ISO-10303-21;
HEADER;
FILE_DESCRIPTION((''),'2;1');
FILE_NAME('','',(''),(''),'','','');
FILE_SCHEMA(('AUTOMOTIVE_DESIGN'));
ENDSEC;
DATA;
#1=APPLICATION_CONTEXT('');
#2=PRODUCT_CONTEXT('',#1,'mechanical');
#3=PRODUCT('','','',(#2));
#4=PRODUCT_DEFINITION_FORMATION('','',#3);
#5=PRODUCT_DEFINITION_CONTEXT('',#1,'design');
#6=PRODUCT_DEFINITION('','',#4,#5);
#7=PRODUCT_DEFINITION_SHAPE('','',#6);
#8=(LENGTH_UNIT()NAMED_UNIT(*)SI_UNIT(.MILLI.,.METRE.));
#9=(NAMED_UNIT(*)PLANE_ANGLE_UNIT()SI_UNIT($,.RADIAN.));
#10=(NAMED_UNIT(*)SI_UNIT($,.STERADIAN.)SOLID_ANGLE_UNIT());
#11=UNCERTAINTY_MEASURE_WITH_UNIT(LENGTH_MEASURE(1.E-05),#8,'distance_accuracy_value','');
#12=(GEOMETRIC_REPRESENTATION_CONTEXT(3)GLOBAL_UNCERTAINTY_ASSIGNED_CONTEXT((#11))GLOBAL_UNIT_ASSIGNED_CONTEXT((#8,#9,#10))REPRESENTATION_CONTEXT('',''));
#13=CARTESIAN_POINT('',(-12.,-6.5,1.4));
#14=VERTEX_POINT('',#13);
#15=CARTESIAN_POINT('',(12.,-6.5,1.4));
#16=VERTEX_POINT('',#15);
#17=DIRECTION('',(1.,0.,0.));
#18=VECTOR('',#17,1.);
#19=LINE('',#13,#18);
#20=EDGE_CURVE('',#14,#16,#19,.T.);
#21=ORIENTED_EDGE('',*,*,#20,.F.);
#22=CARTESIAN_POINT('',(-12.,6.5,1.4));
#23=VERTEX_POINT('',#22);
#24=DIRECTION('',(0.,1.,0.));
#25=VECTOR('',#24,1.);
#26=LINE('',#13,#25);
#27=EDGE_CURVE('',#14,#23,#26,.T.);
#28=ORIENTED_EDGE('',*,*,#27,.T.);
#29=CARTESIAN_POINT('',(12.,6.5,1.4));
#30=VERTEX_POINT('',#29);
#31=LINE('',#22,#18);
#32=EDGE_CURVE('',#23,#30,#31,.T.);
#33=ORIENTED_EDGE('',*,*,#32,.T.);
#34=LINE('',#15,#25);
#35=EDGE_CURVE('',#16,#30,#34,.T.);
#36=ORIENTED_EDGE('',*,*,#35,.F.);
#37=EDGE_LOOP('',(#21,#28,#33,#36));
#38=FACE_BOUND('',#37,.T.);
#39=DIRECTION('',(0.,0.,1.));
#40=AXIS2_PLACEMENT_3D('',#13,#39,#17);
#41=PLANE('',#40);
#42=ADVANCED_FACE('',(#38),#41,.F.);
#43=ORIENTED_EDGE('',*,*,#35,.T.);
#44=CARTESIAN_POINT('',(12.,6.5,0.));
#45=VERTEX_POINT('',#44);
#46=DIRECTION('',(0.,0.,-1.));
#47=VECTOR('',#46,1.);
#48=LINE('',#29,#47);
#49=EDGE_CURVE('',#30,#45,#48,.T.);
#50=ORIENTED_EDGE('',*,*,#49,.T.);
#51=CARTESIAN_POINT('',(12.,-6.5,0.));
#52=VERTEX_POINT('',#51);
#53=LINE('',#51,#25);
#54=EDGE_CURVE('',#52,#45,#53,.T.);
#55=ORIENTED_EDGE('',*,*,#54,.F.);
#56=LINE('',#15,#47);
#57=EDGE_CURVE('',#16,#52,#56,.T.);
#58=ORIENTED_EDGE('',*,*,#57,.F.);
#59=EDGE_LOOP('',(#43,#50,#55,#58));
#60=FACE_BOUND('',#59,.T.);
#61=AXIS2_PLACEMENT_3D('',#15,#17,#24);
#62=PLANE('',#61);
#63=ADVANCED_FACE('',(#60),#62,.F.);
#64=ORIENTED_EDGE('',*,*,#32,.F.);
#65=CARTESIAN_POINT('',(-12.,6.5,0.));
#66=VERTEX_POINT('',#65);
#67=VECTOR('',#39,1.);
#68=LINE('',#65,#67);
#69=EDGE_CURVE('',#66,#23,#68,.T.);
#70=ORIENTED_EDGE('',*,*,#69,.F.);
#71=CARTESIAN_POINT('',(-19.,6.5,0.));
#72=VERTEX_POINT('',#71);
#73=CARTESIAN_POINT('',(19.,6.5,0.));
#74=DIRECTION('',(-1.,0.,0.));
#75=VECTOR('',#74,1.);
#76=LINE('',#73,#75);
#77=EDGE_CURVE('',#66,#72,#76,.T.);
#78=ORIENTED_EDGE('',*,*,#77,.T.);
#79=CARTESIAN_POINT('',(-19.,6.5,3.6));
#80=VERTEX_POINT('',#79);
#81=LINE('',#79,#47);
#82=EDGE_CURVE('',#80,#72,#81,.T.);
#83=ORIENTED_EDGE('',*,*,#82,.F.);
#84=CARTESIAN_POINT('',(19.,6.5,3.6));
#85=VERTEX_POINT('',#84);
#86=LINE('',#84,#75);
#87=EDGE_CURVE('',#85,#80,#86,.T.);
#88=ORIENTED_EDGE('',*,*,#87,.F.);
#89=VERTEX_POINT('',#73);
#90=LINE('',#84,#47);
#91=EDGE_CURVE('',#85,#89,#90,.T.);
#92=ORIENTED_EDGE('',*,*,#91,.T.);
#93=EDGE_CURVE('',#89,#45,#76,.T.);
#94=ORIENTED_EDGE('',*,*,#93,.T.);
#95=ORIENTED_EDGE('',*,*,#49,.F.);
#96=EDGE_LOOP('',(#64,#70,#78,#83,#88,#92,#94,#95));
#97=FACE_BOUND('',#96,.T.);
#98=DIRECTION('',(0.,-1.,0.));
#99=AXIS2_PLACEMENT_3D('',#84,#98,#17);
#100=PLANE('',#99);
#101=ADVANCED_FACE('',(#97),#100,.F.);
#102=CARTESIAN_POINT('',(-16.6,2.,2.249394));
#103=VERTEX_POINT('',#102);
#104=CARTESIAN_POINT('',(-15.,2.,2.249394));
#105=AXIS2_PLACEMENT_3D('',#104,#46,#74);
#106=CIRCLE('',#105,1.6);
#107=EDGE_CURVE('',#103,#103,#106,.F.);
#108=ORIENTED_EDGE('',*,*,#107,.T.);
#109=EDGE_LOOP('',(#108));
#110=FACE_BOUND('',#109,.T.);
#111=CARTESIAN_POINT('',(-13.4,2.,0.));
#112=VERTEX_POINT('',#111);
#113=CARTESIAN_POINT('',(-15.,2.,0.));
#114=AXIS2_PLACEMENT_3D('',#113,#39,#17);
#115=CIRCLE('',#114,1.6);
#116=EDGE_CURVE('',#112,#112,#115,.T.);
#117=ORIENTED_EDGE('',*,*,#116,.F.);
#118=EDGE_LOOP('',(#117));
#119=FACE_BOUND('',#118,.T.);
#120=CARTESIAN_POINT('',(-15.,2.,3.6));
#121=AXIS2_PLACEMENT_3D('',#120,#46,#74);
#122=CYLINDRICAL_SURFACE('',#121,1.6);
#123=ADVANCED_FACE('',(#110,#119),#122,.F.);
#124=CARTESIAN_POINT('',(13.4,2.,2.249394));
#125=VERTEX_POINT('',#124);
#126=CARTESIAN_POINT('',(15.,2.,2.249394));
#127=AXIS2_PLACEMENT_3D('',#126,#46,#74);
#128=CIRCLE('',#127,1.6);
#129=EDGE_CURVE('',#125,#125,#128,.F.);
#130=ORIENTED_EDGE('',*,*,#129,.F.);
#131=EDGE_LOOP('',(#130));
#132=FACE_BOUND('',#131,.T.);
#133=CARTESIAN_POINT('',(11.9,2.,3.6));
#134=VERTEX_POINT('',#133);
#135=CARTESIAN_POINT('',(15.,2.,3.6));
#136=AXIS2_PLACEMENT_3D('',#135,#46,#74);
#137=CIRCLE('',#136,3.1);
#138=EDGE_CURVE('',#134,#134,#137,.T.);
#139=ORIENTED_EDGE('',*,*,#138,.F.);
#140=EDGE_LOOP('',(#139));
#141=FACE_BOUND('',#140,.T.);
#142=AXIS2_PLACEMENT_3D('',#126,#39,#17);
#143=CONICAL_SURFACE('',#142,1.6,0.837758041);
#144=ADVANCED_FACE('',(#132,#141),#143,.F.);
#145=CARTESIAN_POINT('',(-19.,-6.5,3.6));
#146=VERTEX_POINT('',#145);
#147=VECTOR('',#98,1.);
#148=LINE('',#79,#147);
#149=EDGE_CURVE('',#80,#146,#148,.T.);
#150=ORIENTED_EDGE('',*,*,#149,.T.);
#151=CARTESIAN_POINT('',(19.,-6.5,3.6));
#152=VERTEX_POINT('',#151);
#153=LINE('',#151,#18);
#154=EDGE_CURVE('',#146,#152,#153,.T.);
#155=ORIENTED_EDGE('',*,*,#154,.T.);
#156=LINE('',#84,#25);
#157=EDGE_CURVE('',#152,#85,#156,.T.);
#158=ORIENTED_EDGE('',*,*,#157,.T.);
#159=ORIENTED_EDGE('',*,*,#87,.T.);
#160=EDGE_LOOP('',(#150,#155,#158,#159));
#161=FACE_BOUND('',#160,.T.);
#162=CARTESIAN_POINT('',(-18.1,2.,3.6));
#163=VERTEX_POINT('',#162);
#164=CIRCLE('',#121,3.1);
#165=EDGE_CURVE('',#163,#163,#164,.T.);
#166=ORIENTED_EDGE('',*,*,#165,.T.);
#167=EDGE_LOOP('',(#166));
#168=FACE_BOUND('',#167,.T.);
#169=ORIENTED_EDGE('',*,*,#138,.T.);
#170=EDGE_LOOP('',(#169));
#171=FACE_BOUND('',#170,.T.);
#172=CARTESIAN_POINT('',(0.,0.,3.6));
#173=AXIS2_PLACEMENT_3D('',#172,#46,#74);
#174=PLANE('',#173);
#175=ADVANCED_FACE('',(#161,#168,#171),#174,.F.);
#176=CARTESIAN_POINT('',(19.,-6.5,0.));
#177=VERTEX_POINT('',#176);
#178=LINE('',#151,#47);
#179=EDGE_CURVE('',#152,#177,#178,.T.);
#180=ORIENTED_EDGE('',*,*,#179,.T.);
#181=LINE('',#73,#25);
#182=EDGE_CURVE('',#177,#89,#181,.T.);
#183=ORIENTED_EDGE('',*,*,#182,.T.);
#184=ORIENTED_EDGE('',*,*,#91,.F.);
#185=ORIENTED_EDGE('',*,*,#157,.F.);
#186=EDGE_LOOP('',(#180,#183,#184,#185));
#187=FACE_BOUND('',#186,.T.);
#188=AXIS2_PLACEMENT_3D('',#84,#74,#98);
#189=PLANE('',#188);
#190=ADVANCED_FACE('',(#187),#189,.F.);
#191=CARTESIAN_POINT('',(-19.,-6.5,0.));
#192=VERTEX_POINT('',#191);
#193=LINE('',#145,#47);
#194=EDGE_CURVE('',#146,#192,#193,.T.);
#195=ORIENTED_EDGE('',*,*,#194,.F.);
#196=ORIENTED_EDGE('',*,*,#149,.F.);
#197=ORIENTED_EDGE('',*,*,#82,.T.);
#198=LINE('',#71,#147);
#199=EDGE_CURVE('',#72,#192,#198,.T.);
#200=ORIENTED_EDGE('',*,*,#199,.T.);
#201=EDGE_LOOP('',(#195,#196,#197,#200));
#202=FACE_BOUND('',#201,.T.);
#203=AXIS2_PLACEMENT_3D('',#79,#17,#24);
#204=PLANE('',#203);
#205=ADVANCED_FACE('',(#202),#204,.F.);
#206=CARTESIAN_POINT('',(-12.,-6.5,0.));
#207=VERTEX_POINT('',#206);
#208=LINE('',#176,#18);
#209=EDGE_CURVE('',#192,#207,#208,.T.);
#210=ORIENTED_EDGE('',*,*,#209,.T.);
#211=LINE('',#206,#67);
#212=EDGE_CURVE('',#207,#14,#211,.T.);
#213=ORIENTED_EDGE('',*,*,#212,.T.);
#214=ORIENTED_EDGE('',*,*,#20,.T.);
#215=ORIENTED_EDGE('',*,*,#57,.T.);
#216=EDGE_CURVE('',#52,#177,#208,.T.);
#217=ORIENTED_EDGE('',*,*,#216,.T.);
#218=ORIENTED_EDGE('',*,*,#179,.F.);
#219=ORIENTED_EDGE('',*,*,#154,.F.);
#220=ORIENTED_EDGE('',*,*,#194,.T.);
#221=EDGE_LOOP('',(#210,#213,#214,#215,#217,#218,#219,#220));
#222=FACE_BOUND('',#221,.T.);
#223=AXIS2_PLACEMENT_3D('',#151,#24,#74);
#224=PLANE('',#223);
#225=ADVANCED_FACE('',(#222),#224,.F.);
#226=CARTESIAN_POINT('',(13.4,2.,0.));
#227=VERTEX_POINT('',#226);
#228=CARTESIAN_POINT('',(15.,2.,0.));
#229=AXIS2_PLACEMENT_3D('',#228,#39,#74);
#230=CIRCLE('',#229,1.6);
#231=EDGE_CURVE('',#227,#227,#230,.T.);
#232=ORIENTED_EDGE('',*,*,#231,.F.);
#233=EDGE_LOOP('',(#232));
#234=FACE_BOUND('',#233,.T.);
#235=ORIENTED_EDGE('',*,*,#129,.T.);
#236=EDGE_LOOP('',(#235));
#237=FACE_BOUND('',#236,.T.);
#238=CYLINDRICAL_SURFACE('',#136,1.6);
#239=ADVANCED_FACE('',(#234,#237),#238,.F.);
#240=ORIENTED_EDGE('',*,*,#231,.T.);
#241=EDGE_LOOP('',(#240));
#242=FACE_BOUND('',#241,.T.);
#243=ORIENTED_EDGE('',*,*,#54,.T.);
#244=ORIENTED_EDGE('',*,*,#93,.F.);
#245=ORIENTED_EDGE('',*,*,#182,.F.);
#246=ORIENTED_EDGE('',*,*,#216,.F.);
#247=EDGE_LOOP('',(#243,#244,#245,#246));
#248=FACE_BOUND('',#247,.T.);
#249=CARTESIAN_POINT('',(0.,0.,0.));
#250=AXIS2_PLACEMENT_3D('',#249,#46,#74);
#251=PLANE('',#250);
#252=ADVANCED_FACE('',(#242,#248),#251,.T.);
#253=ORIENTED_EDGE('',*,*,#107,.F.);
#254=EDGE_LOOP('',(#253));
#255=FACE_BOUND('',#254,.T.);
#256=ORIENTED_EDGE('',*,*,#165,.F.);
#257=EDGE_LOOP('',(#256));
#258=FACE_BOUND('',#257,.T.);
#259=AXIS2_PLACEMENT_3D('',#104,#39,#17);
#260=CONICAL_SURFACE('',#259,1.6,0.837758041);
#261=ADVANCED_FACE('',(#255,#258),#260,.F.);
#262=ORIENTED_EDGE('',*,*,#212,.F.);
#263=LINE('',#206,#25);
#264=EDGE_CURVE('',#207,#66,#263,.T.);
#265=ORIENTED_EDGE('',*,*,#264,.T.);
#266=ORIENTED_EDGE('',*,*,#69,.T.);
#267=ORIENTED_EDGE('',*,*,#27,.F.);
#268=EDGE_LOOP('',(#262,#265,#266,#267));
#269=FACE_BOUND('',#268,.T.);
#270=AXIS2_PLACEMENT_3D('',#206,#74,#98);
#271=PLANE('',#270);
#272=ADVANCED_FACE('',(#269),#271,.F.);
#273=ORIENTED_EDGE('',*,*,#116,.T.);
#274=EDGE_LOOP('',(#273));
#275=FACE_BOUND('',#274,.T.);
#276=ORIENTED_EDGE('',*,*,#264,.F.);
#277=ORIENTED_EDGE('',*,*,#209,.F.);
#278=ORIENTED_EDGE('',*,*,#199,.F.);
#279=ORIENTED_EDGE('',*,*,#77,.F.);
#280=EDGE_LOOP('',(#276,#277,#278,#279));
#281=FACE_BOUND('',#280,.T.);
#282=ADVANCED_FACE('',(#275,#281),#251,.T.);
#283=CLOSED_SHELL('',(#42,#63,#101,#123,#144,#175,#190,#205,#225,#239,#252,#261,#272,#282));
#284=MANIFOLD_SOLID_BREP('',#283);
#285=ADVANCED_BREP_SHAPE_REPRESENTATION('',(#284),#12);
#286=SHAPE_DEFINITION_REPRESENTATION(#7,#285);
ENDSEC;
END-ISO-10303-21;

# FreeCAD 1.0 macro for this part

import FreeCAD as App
import Part
import Sketcher
from FreeCAD import Vector


def edges_at(feature, points):
    """Names of the edges that pass closest to the given points."""
    edges = feature.Shape.Edges
    near = lambda p: min(range(len(edges)), key=lambda i: edges[i].distToShape(Part.Vertex(*p))[0])
    return sorted({f"Edge{near(p) + 1}" for p in points})


def add_polygon(sketch, points):
    """Adds a closed chain of lines whose ends are joined by coincident constraints."""
    first, n = sketch.GeometryCount, len(points)
    for a, b in zip(points, points[1:] + points[:1]):
        sketch.addGeometry(Part.LineSegment(App.Vector(*a, 0), App.Vector(*b, 0)), False)
    for i in range(n):
        sketch.addConstraint(Sketcher.Constraint("Coincident", first + i, 2, first + (i + 1) % n, 1))

doc = App.newDocument("Part")
body = doc.addObject("PartDesign::Body", "Body")

# Sketch on XY plane
sketch1 = body.newObject("Sketcher::SketchObject", "Sketch")
sketch1.AttachmentSupport = (doc.getObject("XY_Plane"), [""])
sketch1.MapMode = "FlatFace"
add_polygon(sketch1, [(-19, 6.5), (-19, -6.5), (19, -6.5), (19, 6.5)])  # lines 0-3
sketch1.addGeometry(Part.Circle(Vector(-15, 2, 0), Vector(0, 0, 1), 1.6), False)  # 4
sketch1.addGeometry(Part.Circle(Vector(15, 2, 0), Vector(0, 0, 1), 1.6), False)  # 5
sketch1.addConstraint([
    Sketcher.Constraint("Vertical", 0),
    Sketcher.Constraint("Horizontal", 1),
    Sketcher.Constraint("Vertical", 2),
    Sketcher.Constraint("Horizontal", 3),
    Sketcher.Constraint("Equal", 4, 5),
    Sketcher.Constraint("Symmetric", 0, 2, 2, 2, -1, 1),
    Sketcher.Constraint("Symmetric", 4, 3, 5, 3, -2),
    Sketcher.Constraint("Diameter", 4, 3.2),
    Sketcher.Constraint("DistanceX", 1, 1, 1, 2, 38.0),
    Sketcher.Constraint("DistanceY", 0, 2, 0, 1, 13.0),
    Sketcher.Constraint("DistanceX", 4, 3, -1, 1, 15.0),
    Sketcher.Constraint("DistanceY", -1, 1, 4, 3, 2.0),
])
pad1 = body.newObject("PartDesign::Pad", "Pad")
pad1.Profile = sketch1
pad1.Length = 3.6

# Sketch on XZ plane
sketch2 = body.newObject("Sketcher::SketchObject", "Sketch001")
sketch2.AttachmentSupport = (doc.getObject("XZ_Plane"), [""])
sketch2.MapMode = "FlatFace"
sketch2.AttachmentOffset = App.Placement(Vector(0, 0, -6.5), App.Rotation())
add_polygon(sketch2, [(-12, 0), (-12, 1.4), (12, 1.4), (12, 0)])  # lines 0-3
sketch2.addConstraint([
    Sketcher.Constraint("Vertical", 0),
    Sketcher.Constraint("Horizontal", 1),
    Sketcher.Constraint("Vertical", 2),
    Sketcher.Constraint("Horizontal", 3),
    Sketcher.Constraint("Symmetric", 2, 2, 3, 2, -1, 1),
    Sketcher.Constraint("DistanceX", 1, 1, 1, 2, 24.0),
    Sketcher.Constraint("DistanceY", 0, 1, 0, 2, 1.4),
])
pocket1 = body.newObject("PartDesign::Pocket", "Pocket")
pocket1.Profile = sketch2
pocket1.Type = "ThroughAll"
pocket1.Reversed = True
doc.recompute()

chamfer = body.newObject("PartDesign::Chamfer", "Chamfer")
chamfer.Base = (pocket1, edges_at(pocket1, [(-16.6, 2, 3.6), (16.6, 2, 3.6)]))
chamfer.ChamferType = "Two distances"
chamfer.Size = 1.5
chamfer.Size2 = 1.350606

doc.recompute()
